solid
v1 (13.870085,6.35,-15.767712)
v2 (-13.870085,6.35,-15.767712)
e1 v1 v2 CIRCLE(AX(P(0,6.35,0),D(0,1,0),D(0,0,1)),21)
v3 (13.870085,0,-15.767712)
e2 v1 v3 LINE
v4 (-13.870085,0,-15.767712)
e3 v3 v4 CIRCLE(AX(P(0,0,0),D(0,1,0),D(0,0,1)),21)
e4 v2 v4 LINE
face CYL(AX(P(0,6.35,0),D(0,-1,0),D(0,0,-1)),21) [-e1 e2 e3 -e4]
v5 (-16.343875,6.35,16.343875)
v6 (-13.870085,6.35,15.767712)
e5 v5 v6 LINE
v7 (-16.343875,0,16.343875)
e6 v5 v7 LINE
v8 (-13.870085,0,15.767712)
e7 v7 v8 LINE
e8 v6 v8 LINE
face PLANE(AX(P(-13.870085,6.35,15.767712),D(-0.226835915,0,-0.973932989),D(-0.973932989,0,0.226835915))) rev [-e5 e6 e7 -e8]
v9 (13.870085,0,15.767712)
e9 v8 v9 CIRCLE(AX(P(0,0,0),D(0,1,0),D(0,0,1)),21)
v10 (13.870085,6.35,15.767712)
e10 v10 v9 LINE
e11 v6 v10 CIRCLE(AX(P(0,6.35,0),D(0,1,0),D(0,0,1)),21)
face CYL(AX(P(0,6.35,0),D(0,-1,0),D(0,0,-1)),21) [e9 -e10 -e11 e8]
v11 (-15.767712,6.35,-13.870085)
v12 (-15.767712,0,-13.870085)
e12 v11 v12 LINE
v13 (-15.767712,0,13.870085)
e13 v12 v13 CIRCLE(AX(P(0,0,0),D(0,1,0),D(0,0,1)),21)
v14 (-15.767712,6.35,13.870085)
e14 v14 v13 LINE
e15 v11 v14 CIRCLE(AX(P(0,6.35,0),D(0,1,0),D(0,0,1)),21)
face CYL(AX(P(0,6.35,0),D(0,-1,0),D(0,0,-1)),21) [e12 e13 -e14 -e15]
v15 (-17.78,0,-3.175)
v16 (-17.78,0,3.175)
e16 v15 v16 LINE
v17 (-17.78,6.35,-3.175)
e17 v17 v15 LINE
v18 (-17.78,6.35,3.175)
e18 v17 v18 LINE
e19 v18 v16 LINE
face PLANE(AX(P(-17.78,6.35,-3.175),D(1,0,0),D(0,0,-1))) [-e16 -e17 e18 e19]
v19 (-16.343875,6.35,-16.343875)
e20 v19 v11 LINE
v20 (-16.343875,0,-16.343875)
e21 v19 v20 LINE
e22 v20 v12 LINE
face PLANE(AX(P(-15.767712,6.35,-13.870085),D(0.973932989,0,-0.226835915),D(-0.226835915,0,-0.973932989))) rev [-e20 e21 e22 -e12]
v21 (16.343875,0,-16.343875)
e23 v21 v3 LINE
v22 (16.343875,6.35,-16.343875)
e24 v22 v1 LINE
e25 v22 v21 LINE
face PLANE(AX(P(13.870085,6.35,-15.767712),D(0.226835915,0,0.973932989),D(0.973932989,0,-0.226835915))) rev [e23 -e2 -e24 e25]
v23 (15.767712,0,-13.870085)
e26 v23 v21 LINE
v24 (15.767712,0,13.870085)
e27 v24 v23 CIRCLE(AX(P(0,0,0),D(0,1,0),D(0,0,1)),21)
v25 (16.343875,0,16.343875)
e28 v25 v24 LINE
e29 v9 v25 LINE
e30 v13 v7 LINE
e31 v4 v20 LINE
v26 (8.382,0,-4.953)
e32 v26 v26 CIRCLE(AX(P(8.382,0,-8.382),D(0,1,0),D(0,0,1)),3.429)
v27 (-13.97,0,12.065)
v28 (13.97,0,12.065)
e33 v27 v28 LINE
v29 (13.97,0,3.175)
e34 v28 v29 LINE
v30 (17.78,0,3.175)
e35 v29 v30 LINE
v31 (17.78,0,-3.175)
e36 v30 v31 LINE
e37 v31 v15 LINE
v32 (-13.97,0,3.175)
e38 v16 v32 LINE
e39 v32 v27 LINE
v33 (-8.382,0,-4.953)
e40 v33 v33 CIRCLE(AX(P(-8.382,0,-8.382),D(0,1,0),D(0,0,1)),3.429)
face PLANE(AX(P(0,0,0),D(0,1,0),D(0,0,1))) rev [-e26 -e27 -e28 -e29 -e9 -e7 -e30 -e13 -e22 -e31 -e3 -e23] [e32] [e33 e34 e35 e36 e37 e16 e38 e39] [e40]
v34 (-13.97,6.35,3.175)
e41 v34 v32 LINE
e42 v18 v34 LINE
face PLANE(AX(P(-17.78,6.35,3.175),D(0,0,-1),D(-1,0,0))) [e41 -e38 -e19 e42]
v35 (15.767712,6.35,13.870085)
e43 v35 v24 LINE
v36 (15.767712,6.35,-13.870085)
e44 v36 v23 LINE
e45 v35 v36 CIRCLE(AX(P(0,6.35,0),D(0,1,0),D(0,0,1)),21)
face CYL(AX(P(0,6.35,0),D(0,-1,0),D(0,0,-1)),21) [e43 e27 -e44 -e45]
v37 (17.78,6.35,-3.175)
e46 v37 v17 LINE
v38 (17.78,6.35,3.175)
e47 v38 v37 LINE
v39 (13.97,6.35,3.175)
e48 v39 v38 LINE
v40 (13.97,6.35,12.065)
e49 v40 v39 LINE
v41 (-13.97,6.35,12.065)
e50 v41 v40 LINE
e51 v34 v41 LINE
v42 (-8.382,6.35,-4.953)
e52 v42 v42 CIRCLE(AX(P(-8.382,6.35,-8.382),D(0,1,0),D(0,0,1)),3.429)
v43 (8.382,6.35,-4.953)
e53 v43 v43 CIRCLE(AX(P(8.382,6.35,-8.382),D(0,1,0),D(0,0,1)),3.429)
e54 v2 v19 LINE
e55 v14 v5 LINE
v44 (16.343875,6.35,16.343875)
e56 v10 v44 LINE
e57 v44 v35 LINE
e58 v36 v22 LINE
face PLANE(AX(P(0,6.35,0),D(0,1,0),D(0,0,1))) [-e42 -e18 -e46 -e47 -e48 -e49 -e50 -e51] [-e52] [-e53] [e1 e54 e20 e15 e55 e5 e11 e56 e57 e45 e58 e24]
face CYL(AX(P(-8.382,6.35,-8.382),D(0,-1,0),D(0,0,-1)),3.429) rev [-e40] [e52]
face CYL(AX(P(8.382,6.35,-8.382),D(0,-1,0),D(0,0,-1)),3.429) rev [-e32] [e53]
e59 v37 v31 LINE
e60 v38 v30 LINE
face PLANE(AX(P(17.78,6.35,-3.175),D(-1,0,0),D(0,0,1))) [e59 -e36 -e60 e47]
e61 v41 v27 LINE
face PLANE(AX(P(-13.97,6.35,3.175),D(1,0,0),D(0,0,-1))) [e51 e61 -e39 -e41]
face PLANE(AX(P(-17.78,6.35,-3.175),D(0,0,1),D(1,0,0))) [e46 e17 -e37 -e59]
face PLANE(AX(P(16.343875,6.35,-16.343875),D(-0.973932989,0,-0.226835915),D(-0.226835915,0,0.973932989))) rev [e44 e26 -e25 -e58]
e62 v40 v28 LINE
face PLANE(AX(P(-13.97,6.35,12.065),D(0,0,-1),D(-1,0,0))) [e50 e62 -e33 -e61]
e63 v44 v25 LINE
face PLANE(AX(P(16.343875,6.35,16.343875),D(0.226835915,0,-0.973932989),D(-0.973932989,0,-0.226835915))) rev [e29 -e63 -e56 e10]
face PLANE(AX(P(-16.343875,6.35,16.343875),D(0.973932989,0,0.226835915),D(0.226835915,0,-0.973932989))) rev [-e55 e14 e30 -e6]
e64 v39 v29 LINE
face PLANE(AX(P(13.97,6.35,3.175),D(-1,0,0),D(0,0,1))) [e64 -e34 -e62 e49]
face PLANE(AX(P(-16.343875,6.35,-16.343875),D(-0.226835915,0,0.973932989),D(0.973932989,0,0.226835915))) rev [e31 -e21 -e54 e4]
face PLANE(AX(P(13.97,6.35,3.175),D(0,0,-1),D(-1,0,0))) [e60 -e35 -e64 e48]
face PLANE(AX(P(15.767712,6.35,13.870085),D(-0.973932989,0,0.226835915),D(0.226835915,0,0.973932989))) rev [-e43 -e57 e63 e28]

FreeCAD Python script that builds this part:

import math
import FreeCAD as App
import Part
import Sketcher
from FreeCAD import Vector
Q = App.Units.Quantity

doc = App.newDocument("Part")
body = doc.addObject("PartDesign::Body", "Body")

# Sketch on XZ plane
sketch1 = doc.addObject("Sketcher::SketchObject", "Sketch")
body.addObject(sketch1)
sketch1.AttachmentSupport = (doc.XZ_Plane, [""])
sketch1.MapMode = "FlatFace"
sketch1.addGeometry(Part.LineSegment(Vector(16.343875, -16.343875, 0), Vector(13.870085, -15.767712, 0)), False)
sketch1.addGeometry(Part.ArcOfCircle(Part.Circle(Vector(0, 0, 0), Vector(0, 0, 1), 21), math.radians(-131.33651), math.radians(-48.66349)), False)
sketch1.addGeometry(Part.LineSegment(Vector(-13.870085, -15.767712, 0), Vector(-16.343875, -16.343875, 0)), False)
sketch1.addGeometry(Part.LineSegment(Vector(-16.343875, -16.343875, 0), Vector(-15.767712, -13.870085, 0)), False)
sketch1.addGeometry(Part.ArcOfCircle(Part.Circle(Vector(0, 0, 0), Vector(0, 0, 1), 21), math.radians(138.66349), math.radians(221.33651)), False)
sketch1.addGeometry(Part.LineSegment(Vector(-15.767712, 13.870085, 0), Vector(-16.343875, 16.343875, 0)), False)
sketch1.addGeometry(Part.LineSegment(Vector(-16.343875, 16.343875, 0), Vector(-13.870085, 15.767712, 0)), False)
sketch1.addGeometry(Part.ArcOfCircle(Part.Circle(Vector(0, 0, 0), Vector(0, 0, 1), 21), math.radians(48.66349), math.radians(131.33651)), False)
sketch1.addGeometry(Part.LineSegment(Vector(13.870085, 15.767712, 0), Vector(16.343875, 16.343875, 0)), False)
sketch1.addGeometry(Part.LineSegment(Vector(16.343875, 16.343875, 0), Vector(15.767712, 13.870085, 0)), False)
sketch1.addGeometry(Part.ArcOfCircle(Part.Circle(Vector(0, 0, 0), Vector(0, 0, 1), 21), math.radians(-41.33651), math.radians(41.33651)), False)
sketch1.addGeometry(Part.LineSegment(Vector(15.767712, -13.870085, 0), Vector(16.343875, -16.343875, 0)), False)
sketch1.addGeometry(Part.LineSegment(Vector(-13.97, 3.175, 0), Vector(-17.78, 3.175, 0)), False)
sketch1.addGeometry(Part.LineSegment(Vector(-17.78, 3.175, 0), Vector(-17.78, -3.175, 0)), False)
sketch1.addGeometry(Part.LineSegment(Vector(-17.78, -3.175, 0), Vector(17.78, -3.175, 0)), False)
sketch1.addGeometry(Part.LineSegment(Vector(17.78, -3.175, 0), Vector(17.78, 3.175, 0)), False)
sketch1.addGeometry(Part.LineSegment(Vector(17.78, 3.175, 0), Vector(13.97, 3.175, 0)), False)
sketch1.addGeometry(Part.LineSegment(Vector(13.97, 3.175, 0), Vector(13.97, 12.065, 0)), False)
sketch1.addGeometry(Part.LineSegment(Vector(13.97, 12.065, 0), Vector(-13.97, 12.065, 0)), False)
sketch1.addGeometry(Part.LineSegment(Vector(-13.97, 12.065, 0), Vector(-13.97, 3.175, 0)), False)
sketch1.addGeometry(Part.Circle(Vector(8.382, -8.382, 0), Vector(0, 0, 1), 3.429), False)
sketch1.addGeometry(Part.Circle(Vector(-8.382, -8.382, 0), Vector(0, 0, 1), 3.429), False)
sketch1.addConstraint(Sketcher.Constraint("Coincident", 0, 2, 1, 2))
sketch1.addConstraint(Sketcher.Constraint("Coincident", 1, 1, 2, 1))
sketch1.addConstraint(Sketcher.Constraint("Coincident", 2, 2, 3, 1))
sketch1.addConstraint(Sketcher.Constraint("Coincident", 3, 2, 4, 2))
sketch1.addConstraint(Sketcher.Constraint("Coincident", 4, 1, 5, 1))
sketch1.addConstraint(Sketcher.Constraint("Coincident", 5, 2, 6, 1))
sketch1.addConstraint(Sketcher.Constraint("Coincident", 6, 2, 7, 2))
sketch1.addConstraint(Sketcher.Constraint("Coincident", 7, 1, 8, 1))
sketch1.addConstraint(Sketcher.Constraint("Coincident", 8, 2, 9, 1))
sketch1.addConstraint(Sketcher.Constraint("Coincident", 9, 2, 10, 2))
sketch1.addConstraint(Sketcher.Constraint("Coincident", 10, 1, 11, 1))
sketch1.addConstraint(Sketcher.Constraint("Coincident", 11, 2, 0, 1))
sketch1.addConstraint(Sketcher.Constraint("Coincident", 12, 2, 13, 1))
sketch1.addConstraint(Sketcher.Constraint("Coincident", 13, 2, 14, 1))
sketch1.addConstraint(Sketcher.Constraint("Coincident", 14, 2, 15, 1))
sketch1.addConstraint(Sketcher.Constraint("Coincident", 15, 2, 16, 1))
sketch1.addConstraint(Sketcher.Constraint("Coincident", 16, 2, 17, 1))
sketch1.addConstraint(Sketcher.Constraint("Coincident", 17, 2, 18, 1))
sketch1.addConstraint(Sketcher.Constraint("Coincident", 18, 2, 19, 1))
sketch1.addConstraint(Sketcher.Constraint("Coincident", 19, 2, 12, 1))
sketch1.addConstraint(Sketcher.Constraint("Horizontal", 12))
sketch1.addConstraint(Sketcher.Constraint("Vertical", 13))
sketch1.addConstraint(Sketcher.Constraint("Horizontal", 14))
sketch1.addConstraint(Sketcher.Constraint("Vertical", 15))
sketch1.addConstraint(Sketcher.Constraint("Horizontal", 16))
sketch1.addConstraint(Sketcher.Constraint("Vertical", 17))
sketch1.addConstraint(Sketcher.Constraint("Horizontal", 18))
sketch1.addConstraint(Sketcher.Constraint("Vertical", 19))
sketch1.addConstraint(Sketcher.Constraint("Coincident", 1, 3, -1, 1))
sketch1.addConstraint(Sketcher.Constraint("Coincident", 4, 3, -1, 1))
sketch1.addConstraint(Sketcher.Constraint("Coincident", 7, 3, -1, 1))
sketch1.addConstraint(Sketcher.Constraint("Coincident", 10, 3, -1, 1))
sketch1.addConstraint(Sketcher.Constraint("Equal", 1, 4))
sketch1.addConstraint(Sketcher.Constraint("Equal", 4, 7))
sketch1.addConstraint(Sketcher.Constraint("Equal", 7, 10))
sketch1.addConstraint(Sketcher.Constraint("Equal", 20, 21))
sketch1.addConstraint(Sketcher.Constraint("Symmetric", 2, 2, 8, 2, -1, 1))
sketch1.addConstraint(Sketcher.Constraint("Symmetric", 5, 2, 11, 2, -1, 1))
sketch1.addConstraint(Sketcher.Constraint("Symmetric", 12, 2, 14, 2, -1, 1))
sketch1.addConstraint(Sketcher.Constraint("Symmetric", 20, 3, 21, 3, -2))
sketch1.addConstraint(Sketcher.Constraint("Symmetric", 5, 2, 8, 2, -2))
sketch1.addConstraint(Sketcher.Constraint("Symmetric", 16, 2, 19, 2, -2))
sketch1.addConstraint(Sketcher.Constraint("Perpendicular", 0, 3))
sketch1.addConstraint(Sketcher.Constraint("Perpendicular", 2, 5))
sketch1.addConstraint(Sketcher.Constraint("Perpendicular", 3, 6))
sketch1.addConstraint(Sketcher.Constraint("Perpendicular", 5, 8))
sketch1.addConstraint(Sketcher.Constraint("Perpendicular", 6, 9))
sketch1.addConstraint(Sketcher.Constraint("Perpendicular", 8, 11))
sketch1.addConstraint(Sketcher.Constraint("Horizontal", 0, 2, 1, 1))
sketch1.addConstraint(Sketcher.Constraint("Equal", 2, 3))
sketch1.addConstraint(Sketcher.Constraint("Diameter", 20, Q("0.27 in")))
sketch1.addConstraint(Sketcher.Constraint("DistanceX", 14, 1, 14, 2, Q("1.4 in")))
sketch1.addConstraint(Sketcher.Constraint("DistanceX", 18, 2, 18, 1, Q("1.1 in")))
sketch1.addConstraint(Sketcher.Constraint("Distance", 0, Q("0.1 in")))
sketch1.addConstraint(Sketcher.Constraint("DistanceY", 13, 2, 13, 1, Q("0.25 in")))
sketch1.addConstraint(Sketcher.Constraint("DistanceY", 17, 1, 17, 2, Q("0.35 in")))
sketch1.addConstraint(Sketcher.Constraint("DistanceX", -1, 1, 20, 3, Q("0.33 in")))
sketch1.addConstraint(Sketcher.Constraint("DistanceY", 20, 3, -1, 1, Q("0.33 in")))
sketch1.addConstraint(Sketcher.Constraint("Radius", 1, 21.0))
sketch1.addConstraint(Sketcher.Constraint("DistanceY", 0, 2, -1, 1, 15.767712))
pad1 = doc.addObject("PartDesign::Pad", "Pad")
body.addObject(pad1)
pad1.Profile = sketch1
pad1.Length = Q("0.25 in")
pad1.Reversed = True

doc.recompute()
